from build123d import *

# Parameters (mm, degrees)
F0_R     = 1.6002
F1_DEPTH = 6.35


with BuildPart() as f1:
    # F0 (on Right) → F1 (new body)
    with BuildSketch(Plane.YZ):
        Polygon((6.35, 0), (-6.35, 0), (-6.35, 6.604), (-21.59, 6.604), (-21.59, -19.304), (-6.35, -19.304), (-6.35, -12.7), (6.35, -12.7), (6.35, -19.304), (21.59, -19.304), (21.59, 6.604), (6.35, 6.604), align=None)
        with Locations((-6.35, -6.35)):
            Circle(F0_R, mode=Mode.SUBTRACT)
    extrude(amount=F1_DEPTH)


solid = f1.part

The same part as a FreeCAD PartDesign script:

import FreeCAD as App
import Part
import Sketcher
Q = App.Units.Quantity

doc = App.newDocument("Part")
body = doc.addObject("PartDesign::Body", "Body")

sketch1 = body.newObject("Sketcher::SketchObject", "Sketch")
sketch1.AttachmentSupport = (doc.getObject("YZ_Plane"), [""])
sketch1.MapMode = "FlatFace"
sketch1.addGeometry([
    Part.LineSegment(App.Vector(6.3, 0, 0), App.Vector(-6.3, 0, 0)),
    Part.LineSegment(App.Vector(-6.3, 0, 0), App.Vector(-6.3, 6.6, 0)),
    Part.LineSegment(App.Vector(-6.3, 6.6, 0), App.Vector(-21.6, 6.6, 0)),
    Part.LineSegment(App.Vector(-21.6, 6.6, 0), App.Vector(-21.6, -19.3, 0)),
    Part.LineSegment(App.Vector(-21.6, -19.3, 0), App.Vector(-6.3, -19.3, 0)),
    Part.LineSegment(App.Vector(-6.3, -19.3, 0), App.Vector(-6.3, -12.7, 0)),
    Part.LineSegment(App.Vector(-6.3, -12.7, 0), App.Vector(6.3, -12.7, 0)),
    Part.LineSegment(App.Vector(6.3, -12.7, 0), App.Vector(6.3, -19.3, 0)),
    Part.LineSegment(App.Vector(6.3, -19.3, 0), App.Vector(21.6, -19.3, 0)),
    Part.LineSegment(App.Vector(21.6, -19.3, 0), App.Vector(21.6, 6.6, 0)),
    Part.LineSegment(App.Vector(21.6, 6.6, 0), App.Vector(6.3, 6.6, 0)),
    Part.LineSegment(App.Vector(6.3, 6.6, 0), App.Vector(6.3, 0, 0)),
    Part.Circle(App.Vector(-6.3, -6.3, 0), App.Vector(0, 0, 1), 1.6),
], False)
sketch1.addConstraint([
    Sketcher.Constraint("Coincident", 0, 2, 1, 1),
    Sketcher.Constraint("Coincident", 1, 2, 2, 1),
    Sketcher.Constraint("Coincident", 2, 2, 3, 1),
    Sketcher.Constraint("Coincident", 3, 2, 4, 1),
    Sketcher.Constraint("Coincident", 4, 2, 5, 1),
    Sketcher.Constraint("Coincident", 5, 2, 6, 1),
    Sketcher.Constraint("Coincident", 6, 2, 7, 1),
    Sketcher.Constraint("Coincident", 7, 2, 8, 1),
    Sketcher.Constraint("Coincident", 8, 2, 9, 1),
    Sketcher.Constraint("Coincident", 9, 2, 10, 1),
    Sketcher.Constraint("Coincident", 10, 2, 11, 1),
    Sketcher.Constraint("Coincident", 11, 2, 0, 1),
    Sketcher.Constraint("Horizontal", 0),
    Sketcher.Constraint("Vertical", 1),
    Sketcher.Constraint("Horizontal", 2),
    Sketcher.Constraint("Vertical", 3),
    Sketcher.Constraint("Horizontal", 4),
    Sketcher.Constraint("Vertical", 5),
    Sketcher.Constraint("Horizontal", 6),
    Sketcher.Constraint("Vertical", 7),
    Sketcher.Constraint("Horizontal", 8),
    Sketcher.Constraint("Vertical", 9),
    Sketcher.Constraint("Horizontal", 10),
    Sketcher.Constraint("Vertical", 11),
    Sketcher.Constraint("Symmetric", 0, 2, 11, 2, -1, 1),
    Sketcher.Constraint("Symmetric", 4, 2, 7, 2, -2),
    Sketcher.Constraint("Symmetric", 2, 2, 9, 2, -2),
    Sketcher.Constraint("Vertical", 12, 3, 0, 2),
    Sketcher.Constraint("Vertical", 1, 2, 4, 2),
    Sketcher.Constraint("Equal", 1, 5),
    Sketcher.Constraint("Diameter", 12, Q("0.126 in")),
    Sketcher.Constraint("DistanceX", 0, 2, 0, 1, Q("0.5 in")),
    Sketcher.Constraint("DistanceX", 2, 2, 2, 1, Q("0.6 in")),
    Sketcher.Constraint("DistanceY", 1, 1, 1, 2, Q("0.26 in")),
    Sketcher.Constraint("DistanceY", 3, 2, 3, 1, Q("1.02 in")),
    Sketcher.Constraint("DistanceY", 12, 3, -1, 1, Q("0.25 in")),
])
pad1 = body.newObject("PartDesign::Pad", "Pad")
pad1.Profile = sketch1
pad1.Length = Q("0.25 in")

doc.recompute()
